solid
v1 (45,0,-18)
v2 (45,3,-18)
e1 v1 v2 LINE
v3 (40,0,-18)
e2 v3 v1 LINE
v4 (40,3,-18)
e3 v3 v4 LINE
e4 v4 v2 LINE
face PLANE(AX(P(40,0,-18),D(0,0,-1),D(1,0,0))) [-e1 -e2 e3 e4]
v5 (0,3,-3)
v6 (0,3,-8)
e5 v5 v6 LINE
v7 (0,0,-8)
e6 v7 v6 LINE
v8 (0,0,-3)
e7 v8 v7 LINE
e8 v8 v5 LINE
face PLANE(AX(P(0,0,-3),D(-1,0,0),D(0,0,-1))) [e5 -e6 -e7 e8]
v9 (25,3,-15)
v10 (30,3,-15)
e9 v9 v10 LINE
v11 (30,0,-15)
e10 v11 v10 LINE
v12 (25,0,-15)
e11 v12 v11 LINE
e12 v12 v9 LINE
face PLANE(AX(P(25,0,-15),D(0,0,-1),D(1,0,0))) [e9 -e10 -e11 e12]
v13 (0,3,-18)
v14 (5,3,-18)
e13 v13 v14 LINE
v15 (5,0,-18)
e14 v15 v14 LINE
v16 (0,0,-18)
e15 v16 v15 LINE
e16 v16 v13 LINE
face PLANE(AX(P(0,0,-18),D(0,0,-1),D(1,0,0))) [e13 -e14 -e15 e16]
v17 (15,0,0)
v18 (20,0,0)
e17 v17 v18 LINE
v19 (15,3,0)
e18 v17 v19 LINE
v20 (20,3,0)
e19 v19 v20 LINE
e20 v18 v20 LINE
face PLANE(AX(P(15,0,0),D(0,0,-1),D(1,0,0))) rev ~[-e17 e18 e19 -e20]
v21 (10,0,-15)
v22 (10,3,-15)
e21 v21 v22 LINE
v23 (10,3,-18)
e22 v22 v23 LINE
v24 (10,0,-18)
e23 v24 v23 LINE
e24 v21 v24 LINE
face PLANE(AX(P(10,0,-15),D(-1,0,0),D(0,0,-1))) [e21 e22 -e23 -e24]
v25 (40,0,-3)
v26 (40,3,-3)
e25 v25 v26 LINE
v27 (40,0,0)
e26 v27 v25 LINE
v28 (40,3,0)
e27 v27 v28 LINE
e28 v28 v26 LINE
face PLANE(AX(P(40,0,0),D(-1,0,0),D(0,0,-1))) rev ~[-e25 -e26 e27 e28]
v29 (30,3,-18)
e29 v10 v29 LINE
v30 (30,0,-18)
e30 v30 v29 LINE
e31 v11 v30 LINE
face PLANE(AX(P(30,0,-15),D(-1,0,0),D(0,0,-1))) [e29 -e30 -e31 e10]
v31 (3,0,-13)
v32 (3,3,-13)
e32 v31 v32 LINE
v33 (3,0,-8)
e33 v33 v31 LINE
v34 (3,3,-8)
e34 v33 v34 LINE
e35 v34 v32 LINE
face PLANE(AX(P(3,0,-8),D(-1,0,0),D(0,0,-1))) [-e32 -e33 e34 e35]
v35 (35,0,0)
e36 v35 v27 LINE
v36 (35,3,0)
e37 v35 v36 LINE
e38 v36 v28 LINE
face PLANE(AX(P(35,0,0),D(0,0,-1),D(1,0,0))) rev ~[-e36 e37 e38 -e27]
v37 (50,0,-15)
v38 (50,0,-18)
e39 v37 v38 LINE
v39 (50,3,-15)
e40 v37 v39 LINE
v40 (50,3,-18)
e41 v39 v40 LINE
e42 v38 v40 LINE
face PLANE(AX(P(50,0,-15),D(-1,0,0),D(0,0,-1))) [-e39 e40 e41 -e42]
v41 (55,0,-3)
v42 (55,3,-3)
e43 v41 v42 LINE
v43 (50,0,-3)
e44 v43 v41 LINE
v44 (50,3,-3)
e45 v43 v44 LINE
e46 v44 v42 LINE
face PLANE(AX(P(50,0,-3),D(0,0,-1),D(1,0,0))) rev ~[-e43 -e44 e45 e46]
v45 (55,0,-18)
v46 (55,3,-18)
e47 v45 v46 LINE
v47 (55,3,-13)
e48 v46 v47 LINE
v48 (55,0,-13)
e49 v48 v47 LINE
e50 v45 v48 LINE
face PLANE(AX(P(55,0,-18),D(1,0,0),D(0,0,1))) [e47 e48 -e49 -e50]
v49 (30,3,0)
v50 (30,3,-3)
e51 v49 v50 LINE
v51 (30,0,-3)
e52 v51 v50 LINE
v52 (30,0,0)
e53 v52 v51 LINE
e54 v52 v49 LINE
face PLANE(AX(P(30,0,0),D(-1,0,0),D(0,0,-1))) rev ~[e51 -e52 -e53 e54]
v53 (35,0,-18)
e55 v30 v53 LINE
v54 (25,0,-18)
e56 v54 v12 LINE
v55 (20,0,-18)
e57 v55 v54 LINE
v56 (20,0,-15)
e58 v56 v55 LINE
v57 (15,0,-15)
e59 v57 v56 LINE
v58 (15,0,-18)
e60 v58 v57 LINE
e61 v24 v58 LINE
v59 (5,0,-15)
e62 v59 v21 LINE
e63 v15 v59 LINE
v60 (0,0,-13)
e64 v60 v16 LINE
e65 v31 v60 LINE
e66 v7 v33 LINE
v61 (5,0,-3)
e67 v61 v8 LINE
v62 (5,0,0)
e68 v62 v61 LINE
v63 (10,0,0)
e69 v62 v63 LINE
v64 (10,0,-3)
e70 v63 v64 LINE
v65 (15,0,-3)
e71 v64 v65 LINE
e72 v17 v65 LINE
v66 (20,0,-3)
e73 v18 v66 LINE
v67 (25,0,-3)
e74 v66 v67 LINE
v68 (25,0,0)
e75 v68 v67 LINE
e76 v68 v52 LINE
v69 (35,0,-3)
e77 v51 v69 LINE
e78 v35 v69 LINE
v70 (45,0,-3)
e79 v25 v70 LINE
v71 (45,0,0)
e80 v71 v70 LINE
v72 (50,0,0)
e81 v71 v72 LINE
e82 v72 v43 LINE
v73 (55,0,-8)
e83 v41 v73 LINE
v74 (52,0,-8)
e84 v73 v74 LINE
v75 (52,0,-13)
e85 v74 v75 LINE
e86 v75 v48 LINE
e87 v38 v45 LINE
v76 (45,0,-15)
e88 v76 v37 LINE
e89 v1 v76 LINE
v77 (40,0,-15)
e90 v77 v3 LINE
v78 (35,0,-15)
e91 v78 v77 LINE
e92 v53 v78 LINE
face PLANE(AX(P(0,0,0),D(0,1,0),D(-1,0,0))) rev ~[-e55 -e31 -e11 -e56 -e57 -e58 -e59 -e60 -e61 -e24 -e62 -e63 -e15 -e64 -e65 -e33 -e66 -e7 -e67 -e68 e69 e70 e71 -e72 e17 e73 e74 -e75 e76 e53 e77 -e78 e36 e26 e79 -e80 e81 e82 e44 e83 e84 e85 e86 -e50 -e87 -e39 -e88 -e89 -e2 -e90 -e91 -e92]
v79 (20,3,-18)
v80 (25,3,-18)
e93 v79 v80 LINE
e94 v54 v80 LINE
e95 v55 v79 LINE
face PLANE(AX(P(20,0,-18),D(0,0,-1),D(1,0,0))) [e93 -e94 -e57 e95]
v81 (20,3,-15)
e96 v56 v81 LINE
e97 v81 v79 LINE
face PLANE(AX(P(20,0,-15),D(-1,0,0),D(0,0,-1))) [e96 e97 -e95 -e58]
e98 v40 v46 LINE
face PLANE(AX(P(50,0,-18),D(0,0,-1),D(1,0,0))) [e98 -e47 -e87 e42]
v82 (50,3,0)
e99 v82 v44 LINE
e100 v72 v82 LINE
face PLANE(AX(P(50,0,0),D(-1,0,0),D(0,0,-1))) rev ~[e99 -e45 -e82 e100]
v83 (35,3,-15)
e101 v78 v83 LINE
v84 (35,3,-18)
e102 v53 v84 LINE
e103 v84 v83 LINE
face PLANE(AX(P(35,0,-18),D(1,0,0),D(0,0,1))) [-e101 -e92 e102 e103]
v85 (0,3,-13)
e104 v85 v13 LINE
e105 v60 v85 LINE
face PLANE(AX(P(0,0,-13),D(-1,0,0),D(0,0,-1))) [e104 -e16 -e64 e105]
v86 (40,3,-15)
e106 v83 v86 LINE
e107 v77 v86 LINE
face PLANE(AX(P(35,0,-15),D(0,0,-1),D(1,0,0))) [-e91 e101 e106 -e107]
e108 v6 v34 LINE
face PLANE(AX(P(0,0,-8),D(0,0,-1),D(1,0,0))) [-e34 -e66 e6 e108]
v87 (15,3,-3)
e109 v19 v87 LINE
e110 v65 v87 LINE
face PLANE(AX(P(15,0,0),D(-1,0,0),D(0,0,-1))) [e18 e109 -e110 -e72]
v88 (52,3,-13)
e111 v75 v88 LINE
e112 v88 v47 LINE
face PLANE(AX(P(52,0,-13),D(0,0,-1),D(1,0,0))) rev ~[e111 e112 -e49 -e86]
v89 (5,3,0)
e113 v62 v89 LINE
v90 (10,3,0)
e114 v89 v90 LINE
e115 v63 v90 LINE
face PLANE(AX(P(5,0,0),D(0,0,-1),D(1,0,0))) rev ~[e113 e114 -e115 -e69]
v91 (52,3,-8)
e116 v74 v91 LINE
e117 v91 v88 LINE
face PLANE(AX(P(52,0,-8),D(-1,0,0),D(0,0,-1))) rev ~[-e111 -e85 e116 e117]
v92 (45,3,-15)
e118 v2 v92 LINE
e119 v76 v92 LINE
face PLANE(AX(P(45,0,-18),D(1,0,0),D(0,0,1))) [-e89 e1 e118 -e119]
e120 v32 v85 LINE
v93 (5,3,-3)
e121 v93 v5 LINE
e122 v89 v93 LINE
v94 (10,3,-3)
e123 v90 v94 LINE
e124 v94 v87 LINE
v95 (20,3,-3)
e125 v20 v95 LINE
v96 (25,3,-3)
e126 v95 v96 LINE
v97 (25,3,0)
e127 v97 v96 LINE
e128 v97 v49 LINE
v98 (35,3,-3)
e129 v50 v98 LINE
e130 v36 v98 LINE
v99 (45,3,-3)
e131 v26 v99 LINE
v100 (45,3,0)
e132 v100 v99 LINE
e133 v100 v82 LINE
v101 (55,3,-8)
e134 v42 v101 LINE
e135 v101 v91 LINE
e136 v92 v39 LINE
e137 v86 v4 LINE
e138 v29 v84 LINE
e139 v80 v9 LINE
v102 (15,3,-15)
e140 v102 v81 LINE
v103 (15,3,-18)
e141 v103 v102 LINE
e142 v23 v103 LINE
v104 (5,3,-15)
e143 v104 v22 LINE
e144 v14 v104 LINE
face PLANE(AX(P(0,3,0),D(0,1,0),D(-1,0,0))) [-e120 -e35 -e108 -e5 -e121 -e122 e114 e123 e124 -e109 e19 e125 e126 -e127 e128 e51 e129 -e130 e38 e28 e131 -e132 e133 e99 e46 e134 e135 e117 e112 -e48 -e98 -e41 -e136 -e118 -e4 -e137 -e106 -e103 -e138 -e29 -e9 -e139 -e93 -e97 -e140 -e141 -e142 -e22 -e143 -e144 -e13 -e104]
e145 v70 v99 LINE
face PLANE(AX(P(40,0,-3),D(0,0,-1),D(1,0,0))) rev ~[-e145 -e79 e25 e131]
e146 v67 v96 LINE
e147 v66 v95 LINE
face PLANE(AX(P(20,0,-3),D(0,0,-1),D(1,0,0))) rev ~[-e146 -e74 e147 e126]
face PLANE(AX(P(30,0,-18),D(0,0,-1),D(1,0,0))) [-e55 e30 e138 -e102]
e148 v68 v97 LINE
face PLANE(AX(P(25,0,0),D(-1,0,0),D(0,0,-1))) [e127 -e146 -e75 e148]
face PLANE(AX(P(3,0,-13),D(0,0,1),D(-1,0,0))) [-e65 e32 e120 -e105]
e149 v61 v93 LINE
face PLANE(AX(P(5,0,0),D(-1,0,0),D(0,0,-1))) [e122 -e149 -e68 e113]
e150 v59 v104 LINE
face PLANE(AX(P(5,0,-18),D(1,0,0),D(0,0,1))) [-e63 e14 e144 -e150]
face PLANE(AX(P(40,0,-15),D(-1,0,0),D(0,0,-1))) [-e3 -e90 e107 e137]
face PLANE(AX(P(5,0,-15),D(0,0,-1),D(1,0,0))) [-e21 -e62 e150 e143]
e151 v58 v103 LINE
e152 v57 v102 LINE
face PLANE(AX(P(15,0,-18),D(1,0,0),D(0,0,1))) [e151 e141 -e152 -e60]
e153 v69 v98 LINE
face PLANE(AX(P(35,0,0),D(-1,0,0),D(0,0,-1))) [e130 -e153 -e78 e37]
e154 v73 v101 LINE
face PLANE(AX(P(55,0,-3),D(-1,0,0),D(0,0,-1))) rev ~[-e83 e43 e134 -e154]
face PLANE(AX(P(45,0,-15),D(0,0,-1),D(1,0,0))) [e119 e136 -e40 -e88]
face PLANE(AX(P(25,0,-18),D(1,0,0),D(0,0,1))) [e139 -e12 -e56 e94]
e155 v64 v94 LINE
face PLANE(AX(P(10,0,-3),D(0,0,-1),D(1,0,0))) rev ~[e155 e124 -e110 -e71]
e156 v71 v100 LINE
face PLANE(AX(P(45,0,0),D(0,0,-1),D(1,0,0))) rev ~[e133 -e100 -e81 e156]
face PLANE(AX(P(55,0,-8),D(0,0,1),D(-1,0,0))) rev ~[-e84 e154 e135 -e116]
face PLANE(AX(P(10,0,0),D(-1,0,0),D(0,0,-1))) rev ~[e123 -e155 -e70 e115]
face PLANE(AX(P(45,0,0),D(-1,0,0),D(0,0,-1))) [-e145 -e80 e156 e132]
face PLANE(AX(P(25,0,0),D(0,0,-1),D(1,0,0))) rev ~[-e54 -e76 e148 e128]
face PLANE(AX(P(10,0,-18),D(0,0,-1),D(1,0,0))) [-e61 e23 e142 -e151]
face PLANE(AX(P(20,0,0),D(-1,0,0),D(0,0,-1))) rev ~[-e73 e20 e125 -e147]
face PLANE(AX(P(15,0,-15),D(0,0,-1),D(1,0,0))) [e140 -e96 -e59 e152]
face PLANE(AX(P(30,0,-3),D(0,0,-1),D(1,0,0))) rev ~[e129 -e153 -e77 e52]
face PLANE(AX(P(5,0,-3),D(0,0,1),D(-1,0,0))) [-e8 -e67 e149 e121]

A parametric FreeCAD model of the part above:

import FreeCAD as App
import Part
import Sketcher
from FreeCAD import Vector
Q = App.Units.Quantity

doc = App.newDocument("Part")
body = doc.addObject("PartDesign::Body", "Body")

# Sketch on XZ plane
sketch1 = body.newObject("Sketcher::SketchObject", "Sketch")
sketch1.AttachmentSupport = (doc.getObject("XZ_Plane"), [""])
sketch1.MapMode = "FlatFace"
sketch1.addGeometry(Part.LineSegment(Vector(5, -3, 0), Vector(5, 0, 0)), False)
sketch1.addGeometry(Part.LineSegment(Vector(5, 0, 0), Vector(10, 0, 0)), False)
sketch1.addGeometry(Part.LineSegment(Vector(10, 0, 0), Vector(10, -3, 0)), False)
sketch1.addGeometry(Part.LineSegment(Vector(10, -3, 0), Vector(15, -3, 0)), False)
sketch1.addGeometry(Part.LineSegment(Vector(15, -3, 0), Vector(15, 0, 0)), False)
sketch1.addGeometry(Part.LineSegment(Vector(15, 0, 0), Vector(20, 0, 0)), False)
sketch1.addGeometry(Part.LineSegment(Vector(20, 0, 0), Vector(20, -3, 0)), False)
sketch1.addGeometry(Part.LineSegment(Vector(20, -3, 0), Vector(25, -3, 0)), False)
sketch1.addGeometry(Part.LineSegment(Vector(25, -3, 0), Vector(25, 0, 0)), False)
sketch1.addGeometry(Part.LineSegment(Vector(25, 0, 0), Vector(30, 0, 0)), False)
sketch1.addGeometry(Part.LineSegment(Vector(30, 0, 0), Vector(30, -3, 0)), False)
sketch1.addGeometry(Part.LineSegment(Vector(30, -3, 0), Vector(35, -3, 0)), False)
sketch1.addGeometry(Part.LineSegment(Vector(35, -3, 0), Vector(35, 0, 0)), False)
sketch1.addGeometry(Part.LineSegment(Vector(35, 0, 0), Vector(40, 0, 0)), False)
sketch1.addGeometry(Part.LineSegment(Vector(40, 0, 0), Vector(40, -3, 0)), False)
sketch1.addGeometry(Part.LineSegment(Vector(40, -3, 0), Vector(45, -3, 0)), False)
sketch1.addGeometry(Part.LineSegment(Vector(45, -3, 0), Vector(45, 0, 0)), False)
sketch1.addGeometry(Part.LineSegment(Vector(45, 0, 0), Vector(50, 0, 0)), False)
sketch1.addGeometry(Part.LineSegment(Vector(50, 0, 0), Vector(50, -3, 0)), False)
sketch1.addGeometry(Part.LineSegment(Vector(50, -3, 0), Vector(55, -3, 0)), False)
sketch1.addGeometry(Part.LineSegment(Vector(55, -3, 0), Vector(55, -8, 0)), False)
sketch1.addGeometry(Part.LineSegment(Vector(55, -8, 0), Vector(52, -8, 0)), False)
sketch1.addGeometry(Part.LineSegment(Vector(52, -8, 0), Vector(52, -13, 0)), False)
sketch1.addGeometry(Part.LineSegment(Vector(52, -13, 0), Vector(55, -13, 0)), False)
sketch1.addGeometry(Part.LineSegment(Vector(55, -13, 0), Vector(55, -18, 0)), False)
sketch1.addGeometry(Part.LineSegment(Vector(55, -18, 0), Vector(50, -18, 0)), False)
sketch1.addGeometry(Part.LineSegment(Vector(50, -18, 0), Vector(50, -15, 0)), False)
sketch1.addGeometry(Part.LineSegment(Vector(50, -15, 0), Vector(45, -15, 0)), False)
sketch1.addGeometry(Part.LineSegment(Vector(45, -15, 0), Vector(45, -18, 0)), False)
sketch1.addGeometry(Part.LineSegment(Vector(45, -18, 0), Vector(40, -18, 0)), False)
sketch1.addGeometry(Part.LineSegment(Vector(40, -18, 0), Vector(40, -15, 0)), False)
sketch1.addGeometry(Part.LineSegment(Vector(40, -15, 0), Vector(35, -15, 0)), False)
sketch1.addGeometry(Part.LineSegment(Vector(35, -15, 0), Vector(35, -18, 0)), False)
sketch1.addGeometry(Part.LineSegment(Vector(35, -18, 0), Vector(30, -18, 0)), False)
sketch1.addGeometry(Part.LineSegment(Vector(30, -18, 0), Vector(30, -15, 0)), False)
sketch1.addGeometry(Part.LineSegment(Vector(30, -15, 0), Vector(25, -15, 0)), False)
sketch1.addGeometry(Part.LineSegment(Vector(25, -15, 0), Vector(25, -18, 0)), False)
sketch1.addGeometry(Part.LineSegment(Vector(25, -18, 0), Vector(20, -18, 0)), False)
sketch1.addGeometry(Part.LineSegment(Vector(20, -18, 0), Vector(20, -15, 0)), False)
sketch1.addGeometry(Part.LineSegment(Vector(20, -15, 0), Vector(15, -15, 0)), False)
sketch1.addGeometry(Part.LineSegment(Vector(15, -15, 0), Vector(15, -18, 0)), False)
sketch1.addGeometry(Part.LineSegment(Vector(15, -18, 0), Vector(10, -18, 0)), False)
sketch1.addGeometry(Part.LineSegment(Vector(10, -18, 0), Vector(10, -15, 0)), False)
sketch1.addGeometry(Part.LineSegment(Vector(10, -15, 0), Vector(5, -15, 0)), False)
sketch1.addGeometry(Part.LineSegment(Vector(5, -15, 0), Vector(5, -18, 0)), False)
sketch1.addGeometry(Part.LineSegment(Vector(5, -18, 0), Vector(0, -18, 0)), False)
sketch1.addGeometry(Part.LineSegment(Vector(0, -18, 0), Vector(0, -13, 0)), False)
sketch1.addGeometry(Part.LineSegment(Vector(0, -13, 0), Vector(3, -13, 0)), False)
sketch1.addGeometry(Part.LineSegment(Vector(3, -13, 0), Vector(3, -8, 0)), False)
sketch1.addGeometry(Part.LineSegment(Vector(3, -8, 0), Vector(0, -8, 0)), False)
sketch1.addGeometry(Part.LineSegment(Vector(0, -8, 0), Vector(0, -3, 0)), False)
sketch1.addGeometry(Part.LineSegment(Vector(0, -3, 0), Vector(5, -3, 0)), False)
sketch1.addConstraint(Sketcher.Constraint("Coincident", 0, 2, 1, 1))
sketch1.addConstraint(Sketcher.Constraint("Coincident", 1, 2, 2, 1))
sketch1.addConstraint(Sketcher.Constraint("Coincident", 2, 2, 3, 1))
sketch1.addConstraint(Sketcher.Constraint("Coincident", 3, 2, 4, 1))
sketch1.addConstraint(Sketcher.Constraint("Coincident", 4, 2, 5, 1))
sketch1.addConstraint(Sketcher.Constraint("Coincident", 5, 2, 6, 1))
sketch1.addConstraint(Sketcher.Constraint("Coincident", 6, 2, 7, 1))
sketch1.addConstraint(Sketcher.Constraint("Coincident", 7, 2, 8, 1))
sketch1.addConstraint(Sketcher.Constraint("Coincident", 8, 2, 9, 1))
sketch1.addConstraint(Sketcher.Constraint("Coincident", 9, 2, 10, 1))
sketch1.addConstraint(Sketcher.Constraint("Coincident", 10, 2, 11, 1))
sketch1.addConstraint(Sketcher.Constraint("Coincident", 11, 2, 12, 1))
sketch1.addConstraint(Sketcher.Constraint("Coincident", 12, 2, 13, 1))
sketch1.addConstraint(Sketcher.Constraint("Coincident", 13, 2, 14, 1))
sketch1.addConstraint(Sketcher.Constraint("Coincident", 14, 2, 15, 1))
sketch1.addConstraint(Sketcher.Constraint("Coincident", 15, 2, 16, 1))
sketch1.addConstraint(Sketcher.Constraint("Coincident", 16, 2, 17, 1))
sketch1.addConstraint(Sketcher.Constraint("Coincident", 17, 2, 18, 1))
sketch1.addConstraint(Sketcher.Constraint("Coincident", 18, 2, 19, 1))
sketch1.addConstraint(Sketcher.Constraint("Coincident", 19, 2, 20, 1))
sketch1.addConstraint(Sketcher.Constraint("Coincident", 20, 2, 21, 1))
sketch1.addConstraint(Sketcher.Constraint("Coincident", 21, 2, 22, 1))
sketch1.addConstraint(Sketcher.Constraint("Coincident", 22, 2, 23, 1))
sketch1.addConstraint(Sketcher.Constraint("Coincident", 23, 2, 24, 1))
sketch1.addConstraint(Sketcher.Constraint("Coincident", 24, 2, 25, 1))
sketch1.addConstraint(Sketcher.Constraint("Coincident", 25, 2, 26, 1))
sketch1.addConstraint(Sketcher.Constraint("Coincident", 26, 2, 27, 1))
sketch1.addConstraint(Sketcher.Constraint("Coincident", 27, 2, 28, 1))
sketch1.addConstraint(Sketcher.Constraint("Coincident", 28, 2, 29, 1))
sketch1.addConstraint(Sketcher.Constraint("Coincident", 29, 2, 30, 1))
sketch1.addConstraint(Sketcher.Constraint("Coincident", 30, 2, 31, 1))
sketch1.addConstraint(Sketcher.Constraint("Coincident", 31, 2, 32, 1))
sketch1.addConstraint(Sketcher.Constraint("Coincident", 32, 2, 33, 1))
sketch1.addConstraint(Sketcher.Constraint("Coincident", 33, 2, 34, 1))
sketch1.addConstraint(Sketcher.Constraint("Coincident", 34, 2, 35, 1))
sketch1.addConstraint(Sketcher.Constraint("Coincident", 35, 2, 36, 1))
sketch1.addConstraint(Sketcher.Constraint("Coincident", 36, 2, 37, 1))
sketch1.addConstraint(Sketcher.Constraint("Coincident", 37, 2, 38, 1))
sketch1.addConstraint(Sketcher.Constraint("Coincident", 38, 2, 39, 1))
sketch1.addConstraint(Sketcher.Constraint("Coincident", 39, 2, 40, 1))
sketch1.addConstraint(Sketcher.Constraint("Coincident", 40, 2, 41, 1))
sketch1.addConstraint(Sketcher.Constraint("Coincident", 41, 2, 42, 1))
sketch1.addConstraint(Sketcher.Constraint("Coincident", 42, 2, 43, 1))
sketch1.addConstraint(Sketcher.Constraint("Coincident", 43, 2, 44, 1))
sketch1.addConstraint(Sketcher.Constraint("Coincident", 44, 2, 45, 1))
sketch1.addConstraint(Sketcher.Constraint("Coincident", 45, 2, 46, 1))
sketch1.addConstraint(Sketcher.Constraint("Coincident", 46, 2, 47, 1))
sketch1.addConstraint(Sketcher.Constraint("Coincident", 47, 2, 48, 1))
sketch1.addConstraint(Sketcher.Constraint("Coincident", 48, 2, 49, 1))
sketch1.addConstraint(Sketcher.Constraint("Coincident", 49, 2, 50, 1))
sketch1.addConstraint(Sketcher.Constraint("Coincident", 50, 2, 51, 1))
sketch1.addConstraint(Sketcher.Constraint("Coincident", 51, 2, 0, 1))
sketch1.addConstraint(Sketcher.Constraint("Vertical", 0))
sketch1.addConstraint(Sketcher.Constraint("Horizontal", 1))
sketch1.addConstraint(Sketcher.Constraint("Vertical", 2))
sketch1.addConstraint(Sketcher.Constraint("Horizontal", 3))
sketch1.addConstraint(Sketcher.Constraint("Vertical", 4))
sketch1.addConstraint(Sketcher.Constraint("Horizontal", 5))
sketch1.addConstraint(Sketcher.Constraint("Vertical", 6))
sketch1.addConstraint(Sketcher.Constraint("Horizontal", 7))
sketch1.addConstraint(Sketcher.Constraint("Vertical", 8))
sketch1.addConstraint(Sketcher.Constraint("Horizontal", 9))
sketch1.addConstraint(Sketcher.Constraint("Vertical", 10))
sketch1.addConstraint(Sketcher.Constraint("Horizontal", 11))
sketch1.addConstraint(Sketcher.Constraint("Vertical", 12))
sketch1.addConstraint(Sketcher.Constraint("Horizontal", 13))
sketch1.addConstraint(Sketcher.Constraint("Vertical", 14))
sketch1.addConstraint(Sketcher.Constraint("Horizontal", 15))
sketch1.addConstraint(Sketcher.Constraint("Vertical", 16))
sketch1.addConstraint(Sketcher.Constraint("Horizontal", 17))
sketch1.addConstraint(Sketcher.Constraint("Vertical", 18))
sketch1.addConstraint(Sketcher.Constraint("Horizontal", 19))
sketch1.addConstraint(Sketcher.Constraint("Vertical", 20))
sketch1.addConstraint(Sketcher.Constraint("Horizontal", 21))
sketch1.addConstraint(Sketcher.Constraint("Vertical", 22))
sketch1.addConstraint(Sketcher.Constraint("Horizontal", 23))
sketch1.addConstraint(Sketcher.Constraint("Vertical", 24))
sketch1.addConstraint(Sketcher.Constraint("Horizontal", 25))
sketch1.addConstraint(Sketcher.Constraint("Vertical", 26))
sketch1.addConstraint(Sketcher.Constraint("Horizontal", 27))
sketch1.addConstraint(Sketcher.Constraint("Vertical", 28))
sketch1.addConstraint(Sketcher.Constraint("Horizontal", 29))
sketch1.addConstraint(Sketcher.Constraint("Vertical", 30))
sketch1.addConstraint(Sketcher.Constraint("Horizontal", 31))
sketch1.addConstraint(Sketcher.Constraint("Vertical", 32))
sketch1.addConstraint(Sketcher.Constraint("Horizontal", 33))
sketch1.addConstraint(Sketcher.Constraint("Vertical", 34))
sketch1.addConstraint(Sketcher.Constraint("Horizontal", 35))
sketch1.addConstraint(Sketcher.Constraint("Vertical", 36))
sketch1.addConstraint(Sketcher.Constraint("Horizontal", 37))
sketch1.addConstraint(Sketcher.Constraint("Vertical", 38))
sketch1.addConstraint(Sketcher.Constraint("Horizontal", 39))
sketch1.addConstraint(Sketcher.Constraint("Vertical", 40))
sketch1.addConstraint(Sketcher.Constraint("Horizontal", 41))
sketch1.addConstraint(Sketcher.Constraint("Vertical", 42))
sketch1.addConstraint(Sketcher.Constraint("Horizontal", 43))
sketch1.addConstraint(Sketcher.Constraint("Vertical", 44))
sketch1.addConstraint(Sketcher.Constraint("Horizontal", 45))
sketch1.addConstraint(Sketcher.Constraint("Vertical", 46))
sketch1.addConstraint(Sketcher.Constraint("Horizontal", 47))
sketch1.addConstraint(Sketcher.Constraint("Vertical", 48))
sketch1.addConstraint(Sketcher.Constraint("Horizontal", 49))
sketch1.addConstraint(Sketcher.Constraint("Vertical", 50))
sketch1.addConstraint(Sketcher.Constraint("Horizontal", 51))
sketch1.addConstraint(Sketcher.Constraint("PointOnObject", 0, 2, -1))
sketch1.addConstraint(Sketcher.Constraint("PointOnObject", 4, 2, -1))
sketch1.addConstraint(Sketcher.Constraint("PointOnObject", 8, 2, -1))
sketch1.addConstraint(Sketcher.Constraint("PointOnObject", 12, 2, -1))
sketch1.addConstraint(Sketcher.Constraint("PointOnObject", 16, 2, -1))
sketch1.addConstraint(Sketcher.Constraint("PointOnObject", 45, 2, -2))
sketch1.addConstraint(Sketcher.Constraint("PointOnObject", 49, 2, -2))
sketch1.addConstraint(Sketcher.Constraint("Horizontal", 3, 2, 6, 2))
sketch1.addConstraint(Sketcher.Constraint("Horizontal", 7, 2, 10, 2))
sketch1.addConstraint(Sketcher.Constraint("Horizontal", 11, 2, 14, 2))
sketch1.addConstraint(Sketcher.Constraint("Horizontal", 15, 2, 18, 2))
sketch1.addConstraint(Sketcher.Constraint("Horizontal", 25, 2, 28, 2))
sketch1.addConstraint(Sketcher.Constraint("Horizontal", 27, 2, 30, 2))
sketch1.addConstraint(Sketcher.Constraint("Horizontal", 29, 2, 32, 2))
sketch1.addConstraint(Sketcher.Constraint("Horizontal", 31, 2, 34, 2))
sketch1.addConstraint(Sketcher.Constraint("Horizontal", 33, 2, 36, 2))
sketch1.addConstraint(Sketcher.Constraint("Horizontal", 35, 2, 38, 2))
sketch1.addConstraint(Sketcher.Constraint("Horizontal", 37, 2, 40, 2))
sketch1.addConstraint(Sketcher.Constraint("Horizontal", 39, 2, 42, 2))
sketch1.addConstraint(Sketcher.Constraint("Horizontal", 41, 2, 44, 2))
sketch1.addConstraint(Sketcher.Constraint("Horizontal", 23, 2, 46, 2))
sketch1.addConstraint(Sketcher.Constraint("Horizontal", 21, 2, 48, 2))
sketch1.addConstraint(Sketcher.Constraint("Horizontal", 19, 2, 50, 2))
sketch1.addConstraint(Sketcher.Constraint("Vertical", 20, 2, 23, 2))
sketch1.addConstraint(Sketcher.Constraint("Vertical", 18, 2, 25, 2))
sketch1.addConstraint(Sketcher.Constraint("Vertical", 16, 2, 27, 2))
sketch1.addConstraint(Sketcher.Constraint("Vertical", 14, 2, 29, 2))
sketch1.addConstraint(Sketcher.Constraint("Vertical", 12, 2, 31, 2))
sketch1.addConstraint(Sketcher.Constraint("Vertical", 10, 2, 33, 2))
sketch1.addConstraint(Sketcher.Constraint("Vertical", 8, 2, 35, 2))
sketch1.addConstraint(Sketcher.Constraint("Vertical", 6, 2, 37, 2))
sketch1.addConstraint(Sketcher.Constraint("Vertical", 4, 2, 39, 2))
sketch1.addConstraint(Sketcher.Constraint("Vertical", 2, 2, 41, 2))
sketch1.addConstraint(Sketcher.Constraint("Vertical", 0, 2, 43, 2))
sketch1.addConstraint(Sketcher.Constraint("Equal", 1, 3))
sketch1.addConstraint(Sketcher.Constraint("Equal", 3, 5))
sketch1.addConstraint(Sketcher.Constraint("Equal", 5, 7))
sketch1.addConstraint(Sketcher.Constraint("Equal", 7, 9))
sketch1.addConstraint(Sketcher.Constraint("Equal", 9, 11))
sketch1.addConstraint(Sketcher.Constraint("Equal", 11, 13))
sketch1.addConstraint(Sketcher.Constraint("Equal", 13, 15))
sketch1.addConstraint(Sketcher.Constraint("Equal", 15, 17))
sketch1.addConstraint(Sketcher.Constraint("Equal", 17, 19))
sketch1.addConstraint(Sketcher.Constraint("Equal", 43, 45))
sketch1.addConstraint(Sketcher.Constraint("Equal", 23, 47))
sketch1.addConstraint(Sketcher.Constraint("Equal", 49, 0))
sketch1.addConstraint(Sketcher.Constraint("Equal", 51, 20))
sketch1.addConstraint(Sketcher.Constraint("Equal", 20, 22))
sketch1.addConstraint(Sketcher.Constraint("Equal", 22, 24))
sketch1.addConstraint(Sketcher.Constraint("Equal", 18, 26))
sketch1.addConstraint(Sketcher.Constraint("DistanceX", 1, 1, 1, 2, Q("5 mm")))
sketch1.addConstraint(Sketcher.Constraint("DistanceX", 21, 2, 21, 1, Q("3 mm")))
pad1 = body.newObject("PartDesign::Pad", "Pad")
pad1.Profile = sketch1
pad1.Length = 3
pad1.Reversed = True

doc.recompute()
